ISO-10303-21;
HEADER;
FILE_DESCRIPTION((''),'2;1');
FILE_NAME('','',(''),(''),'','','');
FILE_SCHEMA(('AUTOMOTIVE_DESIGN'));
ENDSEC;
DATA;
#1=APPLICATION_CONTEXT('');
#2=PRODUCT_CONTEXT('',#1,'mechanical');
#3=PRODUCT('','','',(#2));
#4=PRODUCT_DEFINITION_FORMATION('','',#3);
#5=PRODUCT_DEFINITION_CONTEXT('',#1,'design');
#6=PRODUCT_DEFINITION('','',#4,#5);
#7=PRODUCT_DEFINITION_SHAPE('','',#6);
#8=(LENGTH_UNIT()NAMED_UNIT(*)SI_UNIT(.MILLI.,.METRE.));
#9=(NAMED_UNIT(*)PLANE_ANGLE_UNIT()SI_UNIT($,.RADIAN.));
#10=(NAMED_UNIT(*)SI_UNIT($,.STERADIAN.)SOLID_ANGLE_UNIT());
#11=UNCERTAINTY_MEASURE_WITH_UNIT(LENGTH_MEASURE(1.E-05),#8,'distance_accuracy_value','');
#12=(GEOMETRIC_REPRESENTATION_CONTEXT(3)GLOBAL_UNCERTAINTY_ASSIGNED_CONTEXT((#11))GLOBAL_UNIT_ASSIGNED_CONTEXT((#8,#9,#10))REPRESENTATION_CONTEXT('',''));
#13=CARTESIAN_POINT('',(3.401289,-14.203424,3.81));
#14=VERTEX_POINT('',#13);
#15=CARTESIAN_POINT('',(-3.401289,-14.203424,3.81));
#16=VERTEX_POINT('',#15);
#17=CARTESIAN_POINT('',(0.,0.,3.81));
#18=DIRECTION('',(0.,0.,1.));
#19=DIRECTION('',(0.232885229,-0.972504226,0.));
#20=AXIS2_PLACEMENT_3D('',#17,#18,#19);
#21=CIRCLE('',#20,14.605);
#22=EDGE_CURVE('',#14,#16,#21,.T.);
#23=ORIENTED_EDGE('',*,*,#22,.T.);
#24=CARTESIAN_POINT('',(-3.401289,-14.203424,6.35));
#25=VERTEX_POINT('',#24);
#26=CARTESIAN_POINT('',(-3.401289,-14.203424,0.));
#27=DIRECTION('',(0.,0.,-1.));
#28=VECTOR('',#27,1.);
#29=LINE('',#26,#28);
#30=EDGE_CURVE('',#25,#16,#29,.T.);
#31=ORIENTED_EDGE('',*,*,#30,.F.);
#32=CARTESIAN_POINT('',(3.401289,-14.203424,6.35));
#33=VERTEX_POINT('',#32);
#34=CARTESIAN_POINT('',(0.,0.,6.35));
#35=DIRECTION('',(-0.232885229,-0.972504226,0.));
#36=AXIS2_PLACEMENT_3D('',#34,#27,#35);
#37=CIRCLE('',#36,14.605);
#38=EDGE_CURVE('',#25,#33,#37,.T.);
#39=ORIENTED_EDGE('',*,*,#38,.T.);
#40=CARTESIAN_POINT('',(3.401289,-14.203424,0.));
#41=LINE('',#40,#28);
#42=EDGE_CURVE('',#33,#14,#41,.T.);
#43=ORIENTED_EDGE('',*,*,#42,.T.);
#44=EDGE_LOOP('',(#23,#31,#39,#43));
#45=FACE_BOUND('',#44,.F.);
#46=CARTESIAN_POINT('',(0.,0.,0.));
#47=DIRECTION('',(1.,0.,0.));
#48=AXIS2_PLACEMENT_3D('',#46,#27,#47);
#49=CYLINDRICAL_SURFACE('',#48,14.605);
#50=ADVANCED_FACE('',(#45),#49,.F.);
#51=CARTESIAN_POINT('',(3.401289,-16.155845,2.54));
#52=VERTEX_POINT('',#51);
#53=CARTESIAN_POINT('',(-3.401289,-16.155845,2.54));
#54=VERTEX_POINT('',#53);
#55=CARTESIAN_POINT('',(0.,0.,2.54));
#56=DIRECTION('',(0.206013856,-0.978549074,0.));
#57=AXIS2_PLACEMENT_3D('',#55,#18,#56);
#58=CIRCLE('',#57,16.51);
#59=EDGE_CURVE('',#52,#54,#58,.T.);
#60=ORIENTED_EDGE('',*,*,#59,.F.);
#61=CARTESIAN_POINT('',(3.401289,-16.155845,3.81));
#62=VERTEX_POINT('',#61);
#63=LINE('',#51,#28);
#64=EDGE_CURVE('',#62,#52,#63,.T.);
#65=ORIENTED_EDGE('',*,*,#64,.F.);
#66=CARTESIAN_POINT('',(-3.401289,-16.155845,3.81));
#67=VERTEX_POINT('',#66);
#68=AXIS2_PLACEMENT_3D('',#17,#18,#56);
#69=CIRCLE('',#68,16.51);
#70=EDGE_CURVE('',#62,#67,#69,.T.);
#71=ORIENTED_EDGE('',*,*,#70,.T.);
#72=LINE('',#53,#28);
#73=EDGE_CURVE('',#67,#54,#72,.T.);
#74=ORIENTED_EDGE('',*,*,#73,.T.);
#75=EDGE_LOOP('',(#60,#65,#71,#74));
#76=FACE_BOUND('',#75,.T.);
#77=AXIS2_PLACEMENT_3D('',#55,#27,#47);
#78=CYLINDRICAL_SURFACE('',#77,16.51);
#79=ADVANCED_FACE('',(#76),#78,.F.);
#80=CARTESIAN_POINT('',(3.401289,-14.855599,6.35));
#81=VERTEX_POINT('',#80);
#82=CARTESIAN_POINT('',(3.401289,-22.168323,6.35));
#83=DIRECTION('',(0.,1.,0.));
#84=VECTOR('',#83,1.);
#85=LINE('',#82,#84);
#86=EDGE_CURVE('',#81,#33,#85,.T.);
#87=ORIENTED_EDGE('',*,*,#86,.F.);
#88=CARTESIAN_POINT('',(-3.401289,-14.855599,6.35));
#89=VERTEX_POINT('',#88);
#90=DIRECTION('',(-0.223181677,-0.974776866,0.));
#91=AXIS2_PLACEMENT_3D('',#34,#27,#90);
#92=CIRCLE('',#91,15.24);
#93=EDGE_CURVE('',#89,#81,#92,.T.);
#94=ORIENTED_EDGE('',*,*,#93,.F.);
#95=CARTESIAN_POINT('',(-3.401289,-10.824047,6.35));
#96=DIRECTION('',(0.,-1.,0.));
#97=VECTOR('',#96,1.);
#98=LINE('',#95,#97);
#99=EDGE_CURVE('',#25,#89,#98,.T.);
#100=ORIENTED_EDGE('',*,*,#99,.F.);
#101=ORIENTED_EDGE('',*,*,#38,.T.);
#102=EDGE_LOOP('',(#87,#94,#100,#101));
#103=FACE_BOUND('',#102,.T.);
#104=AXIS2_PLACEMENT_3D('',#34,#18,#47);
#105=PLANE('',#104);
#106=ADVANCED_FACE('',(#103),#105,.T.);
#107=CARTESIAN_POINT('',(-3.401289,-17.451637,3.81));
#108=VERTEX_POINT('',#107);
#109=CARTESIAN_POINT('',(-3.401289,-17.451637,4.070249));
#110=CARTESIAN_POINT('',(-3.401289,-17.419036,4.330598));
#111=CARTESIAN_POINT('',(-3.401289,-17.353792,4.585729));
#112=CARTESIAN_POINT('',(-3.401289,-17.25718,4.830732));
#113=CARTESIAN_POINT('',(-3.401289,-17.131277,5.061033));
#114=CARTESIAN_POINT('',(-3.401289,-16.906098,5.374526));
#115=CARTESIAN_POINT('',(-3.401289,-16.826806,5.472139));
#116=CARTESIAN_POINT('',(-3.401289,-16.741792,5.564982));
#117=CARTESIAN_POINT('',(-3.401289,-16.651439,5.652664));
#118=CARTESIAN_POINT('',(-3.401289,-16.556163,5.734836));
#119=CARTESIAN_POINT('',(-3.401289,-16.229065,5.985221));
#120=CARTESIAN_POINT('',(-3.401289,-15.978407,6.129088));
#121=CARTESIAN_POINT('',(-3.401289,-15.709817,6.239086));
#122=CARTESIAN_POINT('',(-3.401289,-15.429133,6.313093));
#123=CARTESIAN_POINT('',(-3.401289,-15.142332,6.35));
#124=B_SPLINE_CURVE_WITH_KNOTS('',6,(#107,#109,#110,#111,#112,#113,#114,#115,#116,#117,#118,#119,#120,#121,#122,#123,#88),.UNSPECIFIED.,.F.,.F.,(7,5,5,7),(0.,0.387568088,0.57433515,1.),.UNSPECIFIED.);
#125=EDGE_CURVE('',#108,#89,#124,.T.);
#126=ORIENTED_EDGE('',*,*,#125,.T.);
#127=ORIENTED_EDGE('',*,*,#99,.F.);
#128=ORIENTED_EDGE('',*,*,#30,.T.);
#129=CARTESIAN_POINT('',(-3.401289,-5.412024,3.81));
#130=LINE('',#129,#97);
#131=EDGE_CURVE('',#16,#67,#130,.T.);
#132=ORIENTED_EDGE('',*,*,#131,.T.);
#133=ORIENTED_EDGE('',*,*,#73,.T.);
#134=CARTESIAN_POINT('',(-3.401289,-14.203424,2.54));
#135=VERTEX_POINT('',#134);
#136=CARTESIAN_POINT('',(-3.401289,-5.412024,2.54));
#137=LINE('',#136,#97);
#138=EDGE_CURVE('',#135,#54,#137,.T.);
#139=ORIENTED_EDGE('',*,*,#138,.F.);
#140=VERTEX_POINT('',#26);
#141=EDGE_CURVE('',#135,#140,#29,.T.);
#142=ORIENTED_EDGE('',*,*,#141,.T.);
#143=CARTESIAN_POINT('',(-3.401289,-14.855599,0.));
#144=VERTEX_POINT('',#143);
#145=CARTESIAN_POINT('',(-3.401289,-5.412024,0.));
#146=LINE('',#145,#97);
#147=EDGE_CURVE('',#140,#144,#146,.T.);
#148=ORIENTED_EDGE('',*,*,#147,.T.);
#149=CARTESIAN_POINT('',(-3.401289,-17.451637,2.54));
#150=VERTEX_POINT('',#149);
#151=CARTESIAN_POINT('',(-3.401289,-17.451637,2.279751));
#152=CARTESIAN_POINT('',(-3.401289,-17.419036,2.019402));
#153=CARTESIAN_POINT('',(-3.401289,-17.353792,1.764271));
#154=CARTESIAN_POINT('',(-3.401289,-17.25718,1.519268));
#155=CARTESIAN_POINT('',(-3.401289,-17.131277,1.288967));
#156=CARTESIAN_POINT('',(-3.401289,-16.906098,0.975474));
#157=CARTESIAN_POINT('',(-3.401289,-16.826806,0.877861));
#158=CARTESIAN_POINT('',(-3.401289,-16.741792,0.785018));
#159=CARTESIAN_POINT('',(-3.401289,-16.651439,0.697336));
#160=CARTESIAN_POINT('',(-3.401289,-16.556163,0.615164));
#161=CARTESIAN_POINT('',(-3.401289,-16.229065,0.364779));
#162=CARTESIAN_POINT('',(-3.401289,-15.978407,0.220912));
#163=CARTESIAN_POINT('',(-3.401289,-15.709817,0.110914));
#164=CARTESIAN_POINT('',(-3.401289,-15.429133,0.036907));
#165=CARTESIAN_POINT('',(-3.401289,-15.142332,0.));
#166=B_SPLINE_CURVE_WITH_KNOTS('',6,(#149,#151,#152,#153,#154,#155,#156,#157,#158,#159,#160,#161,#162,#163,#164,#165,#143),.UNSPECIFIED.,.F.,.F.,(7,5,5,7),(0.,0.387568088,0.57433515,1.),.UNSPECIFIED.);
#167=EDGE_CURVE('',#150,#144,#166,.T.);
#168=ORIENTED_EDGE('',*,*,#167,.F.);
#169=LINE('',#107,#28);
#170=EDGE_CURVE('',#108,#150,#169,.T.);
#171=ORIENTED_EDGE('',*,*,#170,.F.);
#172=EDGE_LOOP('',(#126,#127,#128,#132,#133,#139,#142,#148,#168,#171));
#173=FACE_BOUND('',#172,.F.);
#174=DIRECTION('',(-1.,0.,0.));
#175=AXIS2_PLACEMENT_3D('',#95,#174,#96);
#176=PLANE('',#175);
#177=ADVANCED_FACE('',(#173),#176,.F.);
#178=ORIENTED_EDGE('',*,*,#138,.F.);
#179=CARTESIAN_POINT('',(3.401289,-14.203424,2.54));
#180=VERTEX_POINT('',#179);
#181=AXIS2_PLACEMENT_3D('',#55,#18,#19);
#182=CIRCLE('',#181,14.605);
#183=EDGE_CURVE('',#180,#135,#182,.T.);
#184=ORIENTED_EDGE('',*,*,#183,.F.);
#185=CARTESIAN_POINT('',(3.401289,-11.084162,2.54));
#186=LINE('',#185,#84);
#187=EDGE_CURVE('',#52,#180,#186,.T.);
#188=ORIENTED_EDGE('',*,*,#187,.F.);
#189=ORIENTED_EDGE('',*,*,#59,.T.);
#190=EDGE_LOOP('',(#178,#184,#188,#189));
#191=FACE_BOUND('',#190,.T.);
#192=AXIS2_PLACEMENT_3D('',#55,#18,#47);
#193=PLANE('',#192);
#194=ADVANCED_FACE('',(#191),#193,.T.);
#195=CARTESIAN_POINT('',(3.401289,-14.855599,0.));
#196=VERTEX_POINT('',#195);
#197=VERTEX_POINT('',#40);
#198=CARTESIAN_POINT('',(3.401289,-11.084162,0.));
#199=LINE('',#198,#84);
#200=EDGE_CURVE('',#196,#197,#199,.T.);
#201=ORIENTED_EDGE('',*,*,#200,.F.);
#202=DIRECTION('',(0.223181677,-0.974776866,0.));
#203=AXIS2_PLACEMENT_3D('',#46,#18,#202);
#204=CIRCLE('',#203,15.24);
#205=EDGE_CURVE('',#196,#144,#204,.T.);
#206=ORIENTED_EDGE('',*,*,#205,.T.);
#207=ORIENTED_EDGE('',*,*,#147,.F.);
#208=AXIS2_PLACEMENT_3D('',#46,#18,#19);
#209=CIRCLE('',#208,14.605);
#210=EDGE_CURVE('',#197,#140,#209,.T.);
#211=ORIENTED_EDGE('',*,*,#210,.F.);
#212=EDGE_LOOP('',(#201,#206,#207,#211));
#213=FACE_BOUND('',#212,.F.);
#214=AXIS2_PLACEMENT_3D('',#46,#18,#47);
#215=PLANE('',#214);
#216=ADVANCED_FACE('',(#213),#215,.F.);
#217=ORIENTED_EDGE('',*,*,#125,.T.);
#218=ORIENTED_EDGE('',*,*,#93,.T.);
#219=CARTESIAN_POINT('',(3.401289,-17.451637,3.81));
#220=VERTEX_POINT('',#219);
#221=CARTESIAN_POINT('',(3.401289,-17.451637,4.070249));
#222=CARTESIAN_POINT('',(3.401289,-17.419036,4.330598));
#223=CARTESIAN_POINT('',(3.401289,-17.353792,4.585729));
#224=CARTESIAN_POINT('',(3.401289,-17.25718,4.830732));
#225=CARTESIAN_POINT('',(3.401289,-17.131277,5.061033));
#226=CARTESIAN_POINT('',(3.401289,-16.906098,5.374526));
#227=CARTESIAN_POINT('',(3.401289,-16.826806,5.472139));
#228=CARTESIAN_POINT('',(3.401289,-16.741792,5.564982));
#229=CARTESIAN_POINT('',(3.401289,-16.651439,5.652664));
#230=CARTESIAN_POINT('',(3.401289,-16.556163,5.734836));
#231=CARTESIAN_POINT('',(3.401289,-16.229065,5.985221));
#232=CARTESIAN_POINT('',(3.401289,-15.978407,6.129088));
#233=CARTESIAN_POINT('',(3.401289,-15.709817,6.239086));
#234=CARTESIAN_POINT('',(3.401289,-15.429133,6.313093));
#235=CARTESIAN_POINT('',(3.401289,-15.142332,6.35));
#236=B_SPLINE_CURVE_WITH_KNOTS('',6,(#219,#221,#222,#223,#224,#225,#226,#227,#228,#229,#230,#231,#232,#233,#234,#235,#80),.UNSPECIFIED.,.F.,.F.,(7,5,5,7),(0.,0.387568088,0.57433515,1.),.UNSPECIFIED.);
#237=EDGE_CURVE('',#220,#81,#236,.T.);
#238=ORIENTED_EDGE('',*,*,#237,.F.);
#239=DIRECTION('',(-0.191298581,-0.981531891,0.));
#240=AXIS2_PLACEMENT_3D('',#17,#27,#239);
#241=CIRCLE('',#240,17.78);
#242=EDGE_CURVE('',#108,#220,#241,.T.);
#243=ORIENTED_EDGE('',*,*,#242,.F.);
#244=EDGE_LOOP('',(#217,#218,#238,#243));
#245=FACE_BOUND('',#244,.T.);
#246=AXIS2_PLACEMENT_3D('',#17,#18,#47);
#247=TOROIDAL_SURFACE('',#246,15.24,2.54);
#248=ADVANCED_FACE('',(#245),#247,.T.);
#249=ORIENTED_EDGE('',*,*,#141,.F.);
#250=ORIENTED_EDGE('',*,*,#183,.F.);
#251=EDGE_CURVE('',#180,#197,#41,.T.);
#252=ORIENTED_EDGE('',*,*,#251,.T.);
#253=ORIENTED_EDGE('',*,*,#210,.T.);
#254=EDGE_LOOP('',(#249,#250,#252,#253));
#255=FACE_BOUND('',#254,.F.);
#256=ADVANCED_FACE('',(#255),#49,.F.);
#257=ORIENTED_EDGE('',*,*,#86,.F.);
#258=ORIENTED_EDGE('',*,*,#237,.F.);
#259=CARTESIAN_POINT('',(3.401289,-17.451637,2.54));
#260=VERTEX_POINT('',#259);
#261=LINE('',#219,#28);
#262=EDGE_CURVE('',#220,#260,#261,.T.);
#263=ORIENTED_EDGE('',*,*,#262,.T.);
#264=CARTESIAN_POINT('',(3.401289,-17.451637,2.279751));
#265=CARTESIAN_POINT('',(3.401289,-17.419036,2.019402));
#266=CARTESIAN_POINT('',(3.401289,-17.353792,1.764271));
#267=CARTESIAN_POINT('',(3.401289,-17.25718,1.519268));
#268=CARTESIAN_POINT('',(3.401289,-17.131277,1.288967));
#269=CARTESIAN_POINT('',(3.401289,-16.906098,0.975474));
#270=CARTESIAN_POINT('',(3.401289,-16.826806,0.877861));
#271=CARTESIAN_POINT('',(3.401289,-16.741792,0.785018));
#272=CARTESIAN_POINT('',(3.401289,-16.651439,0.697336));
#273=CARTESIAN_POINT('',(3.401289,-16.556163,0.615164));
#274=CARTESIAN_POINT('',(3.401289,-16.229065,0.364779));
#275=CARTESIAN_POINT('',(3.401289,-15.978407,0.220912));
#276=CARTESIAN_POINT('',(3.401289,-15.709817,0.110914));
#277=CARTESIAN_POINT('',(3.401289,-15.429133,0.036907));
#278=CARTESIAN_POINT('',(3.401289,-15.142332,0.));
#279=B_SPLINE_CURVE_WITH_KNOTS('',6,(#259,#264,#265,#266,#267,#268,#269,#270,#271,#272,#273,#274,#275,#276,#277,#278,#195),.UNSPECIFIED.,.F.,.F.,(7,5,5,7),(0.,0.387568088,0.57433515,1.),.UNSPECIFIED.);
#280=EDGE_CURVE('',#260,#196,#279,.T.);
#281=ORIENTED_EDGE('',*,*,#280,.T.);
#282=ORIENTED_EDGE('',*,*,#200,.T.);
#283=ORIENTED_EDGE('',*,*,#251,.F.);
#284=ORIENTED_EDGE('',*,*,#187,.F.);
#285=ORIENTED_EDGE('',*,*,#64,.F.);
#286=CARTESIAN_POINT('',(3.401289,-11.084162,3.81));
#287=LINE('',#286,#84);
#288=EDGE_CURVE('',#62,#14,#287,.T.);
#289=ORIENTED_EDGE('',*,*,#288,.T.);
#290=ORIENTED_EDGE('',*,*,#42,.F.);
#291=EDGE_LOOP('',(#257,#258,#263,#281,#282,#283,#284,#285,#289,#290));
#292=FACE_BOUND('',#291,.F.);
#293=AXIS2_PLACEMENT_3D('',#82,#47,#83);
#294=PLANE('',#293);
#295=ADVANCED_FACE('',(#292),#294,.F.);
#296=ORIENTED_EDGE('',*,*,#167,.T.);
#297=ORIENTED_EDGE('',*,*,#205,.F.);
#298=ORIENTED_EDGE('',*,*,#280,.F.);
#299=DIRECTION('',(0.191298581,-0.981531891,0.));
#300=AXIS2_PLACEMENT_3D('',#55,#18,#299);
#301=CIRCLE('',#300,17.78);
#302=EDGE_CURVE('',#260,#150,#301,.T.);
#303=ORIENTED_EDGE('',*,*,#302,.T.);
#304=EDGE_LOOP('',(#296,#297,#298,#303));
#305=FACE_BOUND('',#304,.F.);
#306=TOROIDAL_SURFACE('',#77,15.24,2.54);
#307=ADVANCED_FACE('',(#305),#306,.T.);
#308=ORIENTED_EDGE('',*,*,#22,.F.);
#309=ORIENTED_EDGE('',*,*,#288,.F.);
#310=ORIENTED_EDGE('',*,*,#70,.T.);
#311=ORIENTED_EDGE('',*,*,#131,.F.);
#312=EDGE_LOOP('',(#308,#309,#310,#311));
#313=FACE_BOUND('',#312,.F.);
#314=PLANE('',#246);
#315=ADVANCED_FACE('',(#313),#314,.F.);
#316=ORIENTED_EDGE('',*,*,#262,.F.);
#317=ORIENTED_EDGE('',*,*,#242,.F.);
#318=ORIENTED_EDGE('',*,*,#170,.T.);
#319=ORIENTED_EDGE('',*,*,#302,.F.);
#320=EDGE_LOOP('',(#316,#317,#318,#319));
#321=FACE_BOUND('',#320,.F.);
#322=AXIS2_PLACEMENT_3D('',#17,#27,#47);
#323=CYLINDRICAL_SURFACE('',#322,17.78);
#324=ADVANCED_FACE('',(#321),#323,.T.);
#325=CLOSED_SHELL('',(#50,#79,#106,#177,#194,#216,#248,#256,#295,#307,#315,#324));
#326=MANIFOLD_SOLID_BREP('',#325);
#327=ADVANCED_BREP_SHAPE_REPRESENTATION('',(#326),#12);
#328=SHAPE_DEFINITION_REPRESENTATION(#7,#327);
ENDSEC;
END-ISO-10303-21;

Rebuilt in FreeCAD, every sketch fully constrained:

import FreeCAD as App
import Part
import Sketcher
Q = App.Units.Quantity


def edges_at(feature, points):
    """Names of the edges that pass closest to the given points."""
    edges = feature.Shape.Edges
    near = lambda p: min(range(len(edges)), key=lambda i: edges[i].distToShape(Part.Vertex(*p))[0])
    return sorted({f"Edge{near(p) + 1}" for p in points})


def add_polygon(sketch, points):
    """Adds a closed chain of lines whose ends are joined by coincident constraints."""
    first, n = sketch.GeometryCount, len(points)
    for a, b in zip(points, points[1:] + points[:1]):
        sketch.addGeometry(Part.LineSegment(App.Vector(*a, 0), App.Vector(*b, 0)), False)
    for i in range(n):
        sketch.addConstraint(Sketcher.Constraint("Coincident", first + i, 2, first + (i + 1) % n, 1))

doc = App.newDocument("Part")
body = doc.addObject("PartDesign::Body", "Body")

sketch1 = body.newObject("Sketcher::SketchObject", "Sketch")
sketch1.AttachmentSupport = (doc.getObject("XY_Plane"), [""])
sketch1.MapMode = "FlatFace"
sketch1.addGeometry(Part.Circle(App.Vector(0, 0, 0), App.Vector(0, 0, 1), 18), False)
sketch1.addConstraint([
    Sketcher.Constraint("Coincident", 0, 3, -1, 1),
    Sketcher.Constraint("Diameter", 0, Q("1.4 in")),
])
pad1 = body.newObject("PartDesign::Pad", "Pad")
pad1.Profile = sketch1
pad1.Length = Q("0.1 in")

sketch2 = body.newObject("Sketcher::SketchObject", "Sketch001")
sketch2.AttachmentSupport = (doc.getObject("XY_Plane"), [""])
sketch2.MapMode = "FlatFace"
sketch2.AttachmentOffset = App.Placement(App.Vector(0, 0, 0.1 * 25.4), App.Rotation())
sketch2.addGeometry([
    Part.Circle(App.Vector(0, 0, 0), App.Vector(0, 0, 1), 18),
    Part.Circle(App.Vector(0, 0, 0), App.Vector(0, 0, 1), 17),
], False)
sketch2.addConstraint([
    Sketcher.Constraint("Coincident", 0, 3, -1, 1),
    Sketcher.Constraint("Coincident", 1, 3, -1, 1),
    Sketcher.Constraint("Diameter", 0, Q("1.4 in")),
    Sketcher.Constraint("Diameter", 1, Q("1.3 in")),
])
pad2 = body.newObject("PartDesign::Pad", "Pad001")
pad2.Profile = sketch2
pad2.Length = Q("0.05 in")

sketch3 = body.newObject("Sketcher::SketchObject", "Sketch002")
sketch3.AttachmentSupport = (doc.getObject("XY_Plane"), [""])
sketch3.MapMode = "FlatFace"
sketch3.AttachmentOffset = App.Placement(App.Vector(0, 0, 0.15 * 25.4), App.Rotation())
sketch3.addGeometry(Part.Circle(App.Vector(0, 0, 0), App.Vector(0, 0, 1), 18), False)
sketch3.addConstraint([
    Sketcher.Constraint("Coincident", 0, 3, -1, 1),
    Sketcher.Constraint("Diameter", 0, Q("1.4 in")),
])
pad3 = body.newObject("PartDesign::Pad", "Pad002")
pad3.Profile = sketch3
pad3.Length = Q("0.1 in")

sketch4 = body.newObject("Sketcher::SketchObject", "Sketch003")
sketch4.AttachmentSupport = (doc.getObject("XY_Plane"), [""])
sketch4.MapMode = "FlatFace"
sketch4.addGeometry(Part.Circle(App.Vector(0, 0, 0), App.Vector(0, 0, 1), 15), False)
sketch4.addConstraint([
    Sketcher.Constraint("Coincident", 0, 3, -1, 1),
    Sketcher.Constraint("Diameter", 0, Q("1.15 in")),
])
pocket1 = body.newObject("PartDesign::Pocket", "Pocket")
pocket1.Profile = sketch4
pocket1.Length = Q("2 in")
pocket1.Reversed = True
doc.recompute()

fillet = body.newObject("PartDesign::Fillet", "Fillet")
fillet.Base = (pocket1, edges_at(pocket1, [(-17.78, 0, 6.35), (-17.78, 0, 0)]))
fillet.Radius = Q("0.1 in")

sketch5 = body.newObject("Sketcher::SketchObject", "Sketch004")
sketch5.AttachmentSupport = (doc.getObject("XY_Plane"), [""])
sketch5.MapMode = "FlatFace"
sketch5.AttachmentOffset = App.Placement(App.Vector(0, 0, 0.25 * 25.4), App.Rotation())
add_polygon(sketch5, [(-3, -22), (3, -22), (3, -11), (-3, -11)])
sketch5.addConstraint([
    Sketcher.Constraint("Horizontal", 0),
    Sketcher.Constraint("Vertical", 1),
    Sketcher.Constraint("Horizontal", 2),
    Sketcher.Constraint("Vertical", 3),
    Sketcher.Constraint("DistanceX", 0, 1, 0, 2, Q("6.802578 mm")),
    Sketcher.Constraint("DistanceY", 1, 1, 1, 2, Q("11.344276 mm")),
    Sketcher.Constraint("DistanceX", -1, 1, 0, 2, Q("3.401289 mm")),
    Sketcher.Constraint("DistanceY", 0, 2, -1, 1, Q("22.168323 mm")),
])
pocket2 = body.newObject("PartDesign::Pocket", "Pocket001")
pocket2.Profile = sketch5
pocket2.Length = Q("1.21 in")

doc.recompute()
